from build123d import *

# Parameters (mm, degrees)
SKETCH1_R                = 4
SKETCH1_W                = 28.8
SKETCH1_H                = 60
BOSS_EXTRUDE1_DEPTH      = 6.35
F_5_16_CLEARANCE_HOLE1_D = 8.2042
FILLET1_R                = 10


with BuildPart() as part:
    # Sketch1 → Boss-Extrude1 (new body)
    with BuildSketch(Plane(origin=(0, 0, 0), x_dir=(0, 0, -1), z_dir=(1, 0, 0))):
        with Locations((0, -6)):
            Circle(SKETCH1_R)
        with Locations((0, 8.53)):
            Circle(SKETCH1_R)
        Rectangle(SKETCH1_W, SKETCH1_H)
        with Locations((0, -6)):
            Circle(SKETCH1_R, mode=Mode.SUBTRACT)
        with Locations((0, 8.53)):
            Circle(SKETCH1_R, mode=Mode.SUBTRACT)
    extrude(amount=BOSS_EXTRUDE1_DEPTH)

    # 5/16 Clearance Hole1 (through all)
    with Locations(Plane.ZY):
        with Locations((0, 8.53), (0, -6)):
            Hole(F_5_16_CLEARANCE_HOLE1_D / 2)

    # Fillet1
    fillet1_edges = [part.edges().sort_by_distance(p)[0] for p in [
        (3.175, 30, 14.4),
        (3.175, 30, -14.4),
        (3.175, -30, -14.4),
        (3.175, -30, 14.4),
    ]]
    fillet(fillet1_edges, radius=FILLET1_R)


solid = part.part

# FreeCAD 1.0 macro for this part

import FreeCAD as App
import Part
import Sketcher


def edges_at(feature, points):
    """Names of the edges that pass closest to the given points."""
    edges = feature.Shape.Edges
    near = lambda p: min(range(len(edges)), key=lambda i: edges[i].distToShape(Part.Vertex(*p))[0])
    return sorted({f"Edge{near(p) + 1}" for p in points})


def add_polygon(sketch, points):
    """Adds a closed chain of lines whose ends are joined by coincident constraints."""
    first, n = sketch.GeometryCount, len(points)
    for a, b in zip(points, points[1:] + points[:1]):
        sketch.addGeometry(Part.LineSegment(App.Vector(*a, 0), App.Vector(*b, 0)), False)
    for i in range(n):
        sketch.addConstraint(Sketcher.Constraint("Coincident", first + i, 2, first + (i + 1) % n, 1))

doc = App.newDocument("Part")
body = doc.addObject("PartDesign::Body", "Body")

# Sketch on YZ plane
sketch1 = body.newObject("Sketcher::SketchObject", "Sketch")
sketch1.AttachmentSupport = (doc.getObject("YZ_Plane"), [""])
sketch1.MapMode = "FlatFace"
add_polygon(sketch1, [(30, 14.4), (-30, 14.4), (-30, -14.4), (30, -14.4)])  # lines 0-3
sketch1.addGeometry(Part.Circle(App.Vector(-6, 0, 0), App.Vector(0, 0, 1), 4), False)  # 4
sketch1.addGeometry(Part.Circle(App.Vector(8.5, 0, 0), App.Vector(0, 0, 1), 4), False)  # 5
sketch1.addConstraint([
    Sketcher.Constraint("Horizontal", 0),
    Sketcher.Constraint("Vertical", 1),
    Sketcher.Constraint("Horizontal", 2),
    Sketcher.Constraint("Vertical", 3),
    Sketcher.Constraint("Equal", 4, 5),
    Sketcher.Constraint("Symmetric", 0, 2, 2, 2, -1, 1),
    Sketcher.Constraint("PointOnObject", 4, 3, -1),
    Sketcher.Constraint("PointOnObject", 5, 3, -1),
    Sketcher.Constraint("Diameter", 4, 8.0),
    Sketcher.Constraint("DistanceX", 0, 2, 0, 1, 60.0),
    Sketcher.Constraint("DistanceY", 1, 2, 1, 1, 28.8),
    Sketcher.Constraint("DistanceX", 4, 3, -1, 1, 6.0),
    Sketcher.Constraint("DistanceX", -1, 1, 5, 3, 8.53),
])
pad1 = body.newObject("PartDesign::Pad", "Pad")
pad1.Profile = sketch1
pad1.Length = 6.35

# Sketch on YZ plane
sketch2 = body.newObject("Sketcher::SketchObject", "Sketch001")
sketch2.AttachmentSupport = (doc.getObject("YZ_Plane"), [""])
sketch2.MapMode = "FlatFace"
sketch2.addGeometry([
    Part.Circle(App.Vector(8.5, 0, 0), App.Vector(0, 0, 1), 4.1),
    Part.Circle(App.Vector(-6, 0, 0), App.Vector(0, 0, 1), 4.1),
], False)
sketch2.addConstraint([
    Sketcher.Constraint("Equal", 0, 1),
    Sketcher.Constraint("PointOnObject", 0, 3, -1),
    Sketcher.Constraint("PointOnObject", 1, 3, -1),
    Sketcher.Constraint("DistanceX", 1, 3, -1, 1, 6.0),
    Sketcher.Constraint("Diameter", 0, 8.2042),
    Sketcher.Constraint("DistanceX", -1, 1, 0, 3, 8.53),
])
doc.recompute()
hole = body.newObject("PartDesign::Hole", "Hole")
hole.Profile = sketch2
hole.ThreadType = "None"
hole.Diameter = 8.2042
hole.DepthType = "ThroughAll"
hole.Reversed = True
doc.recompute()

fillet = body.newObject("PartDesign::Fillet", "Fillet")
fillet.Base = (hole, edges_at(hole, [
    (3.175, 30, 14.4),
    (3.175, 30, -14.4),
    (3.175, -30, -14.4),
    (3.175, -30, 14.4),
]))
fillet.Radius = 10

doc.recompute()
